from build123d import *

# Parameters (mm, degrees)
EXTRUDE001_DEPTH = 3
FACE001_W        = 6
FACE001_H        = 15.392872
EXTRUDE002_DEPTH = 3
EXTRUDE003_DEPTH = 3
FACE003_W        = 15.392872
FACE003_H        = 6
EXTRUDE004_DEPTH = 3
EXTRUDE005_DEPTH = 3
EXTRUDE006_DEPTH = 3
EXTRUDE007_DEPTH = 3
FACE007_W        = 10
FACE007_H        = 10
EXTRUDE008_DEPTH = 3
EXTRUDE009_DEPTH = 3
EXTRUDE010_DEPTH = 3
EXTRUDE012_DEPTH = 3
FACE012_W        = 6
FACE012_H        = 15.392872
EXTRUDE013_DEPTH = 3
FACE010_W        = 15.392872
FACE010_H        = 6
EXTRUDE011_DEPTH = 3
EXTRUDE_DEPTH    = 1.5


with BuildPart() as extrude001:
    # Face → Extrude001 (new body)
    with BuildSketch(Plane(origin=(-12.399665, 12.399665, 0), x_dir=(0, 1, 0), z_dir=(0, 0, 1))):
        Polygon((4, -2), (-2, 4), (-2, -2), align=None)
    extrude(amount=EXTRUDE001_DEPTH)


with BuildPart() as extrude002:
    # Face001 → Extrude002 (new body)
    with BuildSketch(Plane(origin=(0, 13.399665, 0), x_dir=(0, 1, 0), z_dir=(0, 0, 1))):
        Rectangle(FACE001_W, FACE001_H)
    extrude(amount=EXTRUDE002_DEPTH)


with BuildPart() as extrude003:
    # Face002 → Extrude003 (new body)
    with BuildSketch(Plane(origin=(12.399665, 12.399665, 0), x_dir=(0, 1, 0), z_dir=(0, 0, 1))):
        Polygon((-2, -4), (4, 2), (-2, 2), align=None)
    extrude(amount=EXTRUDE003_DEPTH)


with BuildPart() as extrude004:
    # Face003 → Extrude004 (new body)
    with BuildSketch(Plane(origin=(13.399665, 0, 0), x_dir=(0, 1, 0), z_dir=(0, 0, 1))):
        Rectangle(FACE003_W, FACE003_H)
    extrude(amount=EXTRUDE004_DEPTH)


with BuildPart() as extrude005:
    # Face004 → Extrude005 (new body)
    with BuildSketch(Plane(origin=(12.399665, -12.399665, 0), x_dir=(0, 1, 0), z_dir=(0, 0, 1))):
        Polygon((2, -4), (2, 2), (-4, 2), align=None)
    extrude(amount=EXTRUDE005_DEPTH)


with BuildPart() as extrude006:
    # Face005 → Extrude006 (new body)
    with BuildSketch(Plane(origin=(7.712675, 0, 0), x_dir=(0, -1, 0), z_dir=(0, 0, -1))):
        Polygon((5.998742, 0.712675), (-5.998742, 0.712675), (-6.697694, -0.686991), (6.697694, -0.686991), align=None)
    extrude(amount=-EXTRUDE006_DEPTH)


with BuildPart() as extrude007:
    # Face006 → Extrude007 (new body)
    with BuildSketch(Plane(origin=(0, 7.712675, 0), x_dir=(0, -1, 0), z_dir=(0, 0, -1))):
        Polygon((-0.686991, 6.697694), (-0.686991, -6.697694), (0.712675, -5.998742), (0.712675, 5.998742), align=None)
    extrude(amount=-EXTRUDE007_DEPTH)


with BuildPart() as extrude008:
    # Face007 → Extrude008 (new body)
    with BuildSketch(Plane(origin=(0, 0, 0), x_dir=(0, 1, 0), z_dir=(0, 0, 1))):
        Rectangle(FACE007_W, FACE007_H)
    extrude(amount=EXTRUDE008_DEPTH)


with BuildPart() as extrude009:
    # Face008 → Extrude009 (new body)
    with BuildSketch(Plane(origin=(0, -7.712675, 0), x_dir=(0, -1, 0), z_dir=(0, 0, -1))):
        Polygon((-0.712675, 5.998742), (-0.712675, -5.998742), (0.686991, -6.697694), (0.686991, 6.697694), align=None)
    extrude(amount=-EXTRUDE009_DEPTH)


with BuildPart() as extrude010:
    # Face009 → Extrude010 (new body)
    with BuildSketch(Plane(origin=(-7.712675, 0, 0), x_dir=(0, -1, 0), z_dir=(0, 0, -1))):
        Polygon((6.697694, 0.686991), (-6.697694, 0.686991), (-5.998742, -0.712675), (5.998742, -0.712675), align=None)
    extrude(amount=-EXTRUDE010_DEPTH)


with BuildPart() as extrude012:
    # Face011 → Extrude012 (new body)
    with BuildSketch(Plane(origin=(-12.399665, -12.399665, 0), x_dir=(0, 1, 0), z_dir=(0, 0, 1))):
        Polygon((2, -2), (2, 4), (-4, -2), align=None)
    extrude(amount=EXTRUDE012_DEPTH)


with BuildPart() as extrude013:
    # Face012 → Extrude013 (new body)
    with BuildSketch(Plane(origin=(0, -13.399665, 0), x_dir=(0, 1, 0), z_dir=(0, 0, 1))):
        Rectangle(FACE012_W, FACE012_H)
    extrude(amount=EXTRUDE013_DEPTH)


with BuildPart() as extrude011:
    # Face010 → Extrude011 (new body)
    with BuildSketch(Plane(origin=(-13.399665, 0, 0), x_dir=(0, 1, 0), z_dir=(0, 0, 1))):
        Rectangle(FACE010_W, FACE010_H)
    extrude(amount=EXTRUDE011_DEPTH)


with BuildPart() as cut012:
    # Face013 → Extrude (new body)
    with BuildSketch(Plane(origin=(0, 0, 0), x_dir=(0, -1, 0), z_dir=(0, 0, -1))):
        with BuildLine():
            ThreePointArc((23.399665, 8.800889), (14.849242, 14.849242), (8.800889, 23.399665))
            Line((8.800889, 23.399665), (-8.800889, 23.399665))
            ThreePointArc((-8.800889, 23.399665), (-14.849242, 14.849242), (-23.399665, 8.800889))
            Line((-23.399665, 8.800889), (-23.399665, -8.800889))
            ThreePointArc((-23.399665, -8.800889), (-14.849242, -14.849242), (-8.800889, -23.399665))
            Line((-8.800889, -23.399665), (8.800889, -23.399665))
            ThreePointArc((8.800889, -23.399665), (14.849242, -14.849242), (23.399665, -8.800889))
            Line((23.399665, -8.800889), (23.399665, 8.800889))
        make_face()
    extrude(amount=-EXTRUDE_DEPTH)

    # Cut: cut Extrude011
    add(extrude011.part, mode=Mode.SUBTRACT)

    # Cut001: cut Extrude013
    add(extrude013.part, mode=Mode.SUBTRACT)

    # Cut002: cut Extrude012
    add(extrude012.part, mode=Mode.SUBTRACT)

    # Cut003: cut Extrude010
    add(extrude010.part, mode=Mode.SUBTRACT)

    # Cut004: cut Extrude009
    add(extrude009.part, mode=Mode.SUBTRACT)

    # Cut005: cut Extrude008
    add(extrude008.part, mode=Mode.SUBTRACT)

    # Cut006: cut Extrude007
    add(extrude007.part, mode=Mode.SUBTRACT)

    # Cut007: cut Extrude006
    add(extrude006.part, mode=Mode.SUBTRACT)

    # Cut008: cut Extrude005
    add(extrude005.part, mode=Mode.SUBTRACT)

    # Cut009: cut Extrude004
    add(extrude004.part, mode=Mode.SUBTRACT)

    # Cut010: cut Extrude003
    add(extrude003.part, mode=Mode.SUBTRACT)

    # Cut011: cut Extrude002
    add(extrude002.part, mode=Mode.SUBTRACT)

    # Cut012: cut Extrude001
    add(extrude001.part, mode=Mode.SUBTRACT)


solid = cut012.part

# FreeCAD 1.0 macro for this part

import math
import FreeCAD as App
import Part
import Sketcher
from FreeCAD import Vector
Q = App.Units.Quantity

doc = App.newDocument("Part")
params = doc.addObject("Spreadsheet::Sheet", "Params")
for row, (alias, value) in enumerate([
    ("sketch1_width", "6 mm"),
    ("pad1_length", "3 mm"),
    ("sketch2_height", "6 mm"),
    ("pad2_length", "3 mm"),
    ("sketch3_width", "6 mm"),
    ("pad3_length", "3 mm"),
    ("sketch4_width", "6 mm"),
    ("pad4_length", "3 mm"),
    ("sketch5_width", "6 mm"),
    ("pad5_length", "3 mm"),
    ("pad6_length", "3 mm"),
    ("pad7_length", "3 mm"),
    ("sketch8_width", "10 mm"),
    ("pad8_length", "3 mm"),
    ("pad9_length", "3 mm"),
    ("pad10_length", "3 mm"),
    ("sketch11_width", "6 mm"),
    ("pad11_length", "3 mm"),
    ("sketch12_height", "6 mm"),
    ("pad12_length", "3 mm"),
    ("sketch13_width", "6 mm"),
    ("pad13_length", "3 mm"),
    ("sketch14_radius", "31.000002 mm"),
    ("pad14_length", "1.5 mm"),
], start=1):
    params.set(f"A{row}", alias)
    params.set(f"B{row}", "=" + value)
    params.setAlias(f"B{row}", alias)

body = doc.addObject("PartDesign::Body", "Body")

# Sketch on XY plane
sketch1 = body.newObject("Sketcher::SketchObject", "Sketch")
sketch1.AttachmentSupport = (doc.getObject("XY_Plane"), [""])
sketch1.MapMode = "FlatFace"
sketch1.addGeometry(Part.LineSegment(Vector(-10.399665, 16.399665, 0), Vector(-16.399665, 10.399665, 0)), False)
sketch1.addGeometry(Part.LineSegment(Vector(-16.399665, 10.399665, 0), Vector(-10.399665, 10.399665, 0)), False)
sketch1.addGeometry(Part.LineSegment(Vector(-10.399665, 10.399665, 0), Vector(-10.399665, 16.399665, 0)), False)
sketch1.addConstraint(Sketcher.Constraint("Coincident", 0, 2, 1, 1))
sketch1.addConstraint(Sketcher.Constraint("Coincident", 1, 2, 2, 1))
sketch1.addConstraint(Sketcher.Constraint("Coincident", 2, 2, 0, 1))
sketch1.addConstraint(Sketcher.Constraint("Horizontal", 1))
sketch1.addConstraint(Sketcher.Constraint("Vertical", 2))
sketch1.addConstraint(Sketcher.Constraint("Equal", 1, 2))
sketch1.addConstraint(Sketcher.Constraint("DistanceX", 1, 1, 1, 2, Q("6 mm")))
sketch1.addConstraint(Sketcher.Constraint("DistanceX", 0, 2, -1, 1, Q("16.399665 mm")))
sketch1.addConstraint(Sketcher.Constraint("DistanceY", -1, 1, 0, 2, Q("10.399665 mm")))
sketch1.setExpression("Constraints[6]", "Params.sketch1_width")
pad1 = body.newObject("PartDesign::Pad", "Pad")
pad1.Profile = sketch1
pad1.setExpression("Length", "Params.pad1_length")
body2 = doc.addObject("PartDesign::Body", "Body001")

# Sketch on XY plane
sketch2 = body2.newObject("Sketcher::SketchObject", "Sketch001")
sketch2.AttachmentSupport = (doc.getObject("XY_Plane001"), [""])
sketch2.MapMode = "FlatFace"
sketch2.addGeometry(Part.LineSegment(Vector(-7.696436, 10.399665, 0), Vector(7.696436, 10.399665, 0)), False)
sketch2.addGeometry(Part.LineSegment(Vector(7.696436, 10.399665, 0), Vector(7.696436, 16.399665, 0)), False)
sketch2.addGeometry(Part.LineSegment(Vector(7.696436, 16.399665, 0), Vector(-7.696436, 16.399665, 0)), False)
sketch2.addGeometry(Part.LineSegment(Vector(-7.696436, 16.399665, 0), Vector(-7.696436, 10.399665, 0)), False)
sketch2.addConstraint(Sketcher.Constraint("Coincident", 0, 2, 1, 1))
sketch2.addConstraint(Sketcher.Constraint("Coincident", 1, 2, 2, 1))
sketch2.addConstraint(Sketcher.Constraint("Coincident", 2, 2, 3, 1))
sketch2.addConstraint(Sketcher.Constraint("Coincident", 3, 2, 0, 1))
sketch2.addConstraint(Sketcher.Constraint("Horizontal", 0))
sketch2.addConstraint(Sketcher.Constraint("Vertical", 1))
sketch2.addConstraint(Sketcher.Constraint("Horizontal", 2))
sketch2.addConstraint(Sketcher.Constraint("Vertical", 3))
sketch2.addConstraint(Sketcher.Constraint("DistanceY", 1, 1, 1, 2, Q("6 mm")))
sketch2.addConstraint(Sketcher.Constraint("DistanceX", 0, 1, 0, 2, Q("15.392872 mm")))
sketch2.addConstraint(Sketcher.Constraint("DistanceX", -1, 1, 0, 2, Q("7.696436 mm")))
sketch2.addConstraint(Sketcher.Constraint("DistanceY", -1, 1, 0, 2, Q("10.399665 mm")))
sketch2.setExpression("Constraints[8]", "Params.sketch2_height")
pad2 = body2.newObject("PartDesign::Pad", "Pad001")
pad2.Profile = sketch2
pad2.setExpression("Length", "Params.pad2_length")
body3 = doc.addObject("PartDesign::Body", "Body002")

# Sketch on XY plane
sketch3 = body3.newObject("Sketcher::SketchObject", "Sketch002")
sketch3.AttachmentSupport = (doc.getObject("XY_Plane002"), [""])
sketch3.MapMode = "FlatFace"
sketch3.addGeometry(Part.LineSegment(Vector(16.399665, 10.399665, 0), Vector(10.399665, 16.399665, 0)), False)
sketch3.addGeometry(Part.LineSegment(Vector(10.399665, 16.399665, 0), Vector(10.399665, 10.399665, 0)), False)
sketch3.addGeometry(Part.LineSegment(Vector(10.399665, 10.399665, 0), Vector(16.399665, 10.399665, 0)), False)
sketch3.addConstraint(Sketcher.Constraint("Coincident", 0, 2, 1, 1))
sketch3.addConstraint(Sketcher.Constraint("Coincident", 1, 2, 2, 1))
sketch3.addConstraint(Sketcher.Constraint("Coincident", 2, 2, 0, 1))
sketch3.addConstraint(Sketcher.Constraint("Vertical", 1))
sketch3.addConstraint(Sketcher.Constraint("Horizontal", 2))
sketch3.addConstraint(Sketcher.Constraint("Equal", 2, 1))
sketch3.addConstraint(Sketcher.Constraint("DistanceX", 2, 1, 2, 2, Q("6 mm")))
sketch3.addConstraint(Sketcher.Constraint("DistanceX", -1, 1, 0, 2, Q("10.399665 mm")))
sketch3.addConstraint(Sketcher.Constraint("DistanceY", -1, 1, 0, 2, Q("16.399665 mm")))
sketch3.setExpression("Constraints[6]", "Params.sketch3_width")
pad3 = body3.newObject("PartDesign::Pad", "Pad002")
pad3.Profile = sketch3
pad3.setExpression("Length", "Params.pad3_length")
body4 = doc.addObject("PartDesign::Body", "Body003")

# Sketch on XY plane
sketch4 = body4.newObject("Sketcher::SketchObject", "Sketch003")
sketch4.AttachmentSupport = (doc.getObject("XY_Plane003"), [""])
sketch4.MapMode = "FlatFace"
sketch4.addGeometry(Part.LineSegment(Vector(10.399665, -7.696436, 0), Vector(16.399665, -7.696436, 0)), False)
sketch4.addGeometry(Part.LineSegment(Vector(16.399665, -7.696436, 0), Vector(16.399665, 7.696436, 0)), False)
sketch4.addGeometry(Part.LineSegment(Vector(16.399665, 7.696436, 0), Vector(10.399665, 7.696436, 0)), False)
sketch4.addGeometry(Part.LineSegment(Vector(10.399665, 7.696436, 0), Vector(10.399665, -7.696436, 0)), False)
sketch4.addConstraint(Sketcher.Constraint("Coincident", 0, 2, 1, 1))
sketch4.addConstraint(Sketcher.Constraint("Coincident", 1, 2, 2, 1))
sketch4.addConstraint(Sketcher.Constraint("Coincident", 2, 2, 3, 1))
sketch4.addConstraint(Sketcher.Constraint("Coincident", 3, 2, 0, 1))
sketch4.addConstraint(Sketcher.Constraint("Horizontal", 0))
sketch4.addConstraint(Sketcher.Constraint("Vertical", 1))
sketch4.addConstraint(Sketcher.Constraint("Horizontal", 2))
sketch4.addConstraint(Sketcher.Constraint("Vertical", 3))
sketch4.addConstraint(Sketcher.Constraint("DistanceX", 0, 1, 0, 2, Q("6 mm")))
sketch4.addConstraint(Sketcher.Constraint("DistanceY", 1, 1, 1, 2, Q("15.392872 mm")))
sketch4.addConstraint(Sketcher.Constraint("DistanceX", -1, 1, 0, 2, Q("16.399665 mm")))
sketch4.addConstraint(Sketcher.Constraint("DistanceY", 0, 2, -1, 1, Q("7.696436 mm")))
sketch4.setExpression("Constraints[8]", "Params.sketch4_width")
pad4 = body4.newObject("PartDesign::Pad", "Pad003")
pad4.Profile = sketch4
pad4.setExpression("Length", "Params.pad4_length")
body5 = doc.addObject("PartDesign::Body", "Body004")

# Sketch on XY plane
sketch5 = body5.newObject("Sketcher::SketchObject", "Sketch004")
sketch5.AttachmentSupport = (doc.getObject("XY_Plane004"), [""])
sketch5.MapMode = "FlatFace"
sketch5.addGeometry(Part.LineSegment(Vector(16.399665, -10.399665, 0), Vector(10.399665, -10.399665, 0)), False)
sketch5.addGeometry(Part.LineSegment(Vector(10.399665, -10.399665, 0), Vector(10.399665, -16.399665, 0)), False)
sketch5.addGeometry(Part.LineSegment(Vector(10.399665, -16.399665, 0), Vector(16.399665, -10.399665, 0)), False)
sketch5.addConstraint(Sketcher.Constraint("Coincident", 0, 2, 1, 1))
sketch5.addConstraint(Sketcher.Constraint("Coincident", 1, 2, 2, 1))
sketch5.addConstraint(Sketcher.Constraint("Coincident", 2, 2, 0, 1))
sketch5.addConstraint(Sketcher.Constraint("Horizontal", 0))
sketch5.addConstraint(Sketcher.Constraint("Vertical", 1))
sketch5.addConstraint(Sketcher.Constraint("Equal", 0, 1))
sketch5.addConstraint(Sketcher.Constraint("DistanceX", 0, 2, 0, 1, Q("6 mm")))
sketch5.addConstraint(Sketcher.Constraint("DistanceX", -1, 1, 0, 2, Q("10.399665 mm")))
sketch5.addConstraint(Sketcher.Constraint("DistanceY", 0, 2, -1, 1, Q("10.399665 mm")))
sketch5.setExpression("Constraints[6]", "Params.sketch5_width")
pad5 = body5.newObject("PartDesign::Pad", "Pad004")
pad5.Profile = sketch5
pad5.setExpression("Length", "Params.pad5_length")
body6 = doc.addObject("PartDesign::Body", "Body005")

# Sketch on XY plane
sketch6 = body6.newObject("Sketcher::SketchObject", "Sketch005")
sketch6.AttachmentSupport = (doc.getObject("XY_Plane005"), [""])
sketch6.MapMode = "FlatFace"
sketch6.addGeometry(Part.LineSegment(Vector(7, -5.998742, 0), Vector(7, 5.998742, 0)), False)
sketch6.addGeometry(Part.LineSegment(Vector(7, 5.998742, 0), Vector(8.399666, 6.697694, 0)), False)
sketch6.addGeometry(Part.LineSegment(Vector(8.399666, 6.697694, 0), Vector(8.399666, -6.697694, 0)), False)
sketch6.addGeometry(Part.LineSegment(Vector(8.399666, -6.697694, 0), Vector(7, -5.998742, 0)), False)
sketch6.addConstraint(Sketcher.Constraint("Coincident", 0, 2, 1, 1))
sketch6.addConstraint(Sketcher.Constraint("Coincident", 1, 2, 2, 1))
sketch6.addConstraint(Sketcher.Constraint("Coincident", 2, 2, 3, 1))
sketch6.addConstraint(Sketcher.Constraint("Coincident", 3, 2, 0, 1))
sketch6.addConstraint(Sketcher.Constraint("Vertical", 0))
sketch6.addConstraint(Sketcher.Constraint("Vertical", 2))
sketch6.addConstraint(Sketcher.Constraint("Equal", 1, 3))
sketch6.addConstraint(Sketcher.Constraint("DistanceX", -1, 1, 0, 2, Q("7 mm")))
sketch6.addConstraint(Sketcher.Constraint("Distance", 1, Q("1.56448 mm")))
sketch6.addConstraint(Sketcher.Constraint("DistanceY", 0, 1, 0, 2, Q("11.997484 mm")))
sketch6.addConstraint(Sketcher.Constraint("DistanceY", 2, 2, 2, 1, Q("13.395388 mm")))
sketch6.addConstraint(Sketcher.Constraint("DistanceY", -1, 1, 0, 2, Q("5.998742 mm")))
pad6 = body6.newObject("PartDesign::Pad", "Pad005")
pad6.Profile = sketch6
pad6.setExpression("Length", "Params.pad6_length")
body7 = doc.addObject("PartDesign::Body", "Body006")

# Sketch on XY plane
sketch7 = body7.newObject("Sketcher::SketchObject", "Sketch006")
sketch7.AttachmentSupport = (doc.getObject("XY_Plane006"), [""])
sketch7.MapMode = "FlatFace"
sketch7.addGeometry(Part.LineSegment(Vector(-6.697694, 8.399666, 0), Vector(6.697694, 8.399666, 0)), False)
sketch7.addGeometry(Part.LineSegment(Vector(6.697694, 8.399666, 0), Vector(5.998742, 7, 0)), False)
sketch7.addGeometry(Part.LineSegment(Vector(5.998742, 7, 0), Vector(-5.998742, 7, 0)), False)
sketch7.addGeometry(Part.LineSegment(Vector(-5.998742, 7, 0), Vector(-6.697694, 8.399666, 0)), False)
sketch7.addConstraint(Sketcher.Constraint("Coincident", 0, 2, 1, 1))
sketch7.addConstraint(Sketcher.Constraint("Coincident", 1, 2, 2, 1))
sketch7.addConstraint(Sketcher.Constraint("Coincident", 2, 2, 3, 1))
sketch7.addConstraint(Sketcher.Constraint("Coincident", 3, 2, 0, 1))
sketch7.addConstraint(Sketcher.Constraint("Horizontal", 0))
sketch7.addConstraint(Sketcher.Constraint("Horizontal", 2))
sketch7.addConstraint(Sketcher.Constraint("Equal", 1, 3))
sketch7.addConstraint(Sketcher.Constraint("DistanceY", -1, 1, 1, 2, Q("7 mm")))
sketch7.addConstraint(Sketcher.Constraint("Distance", 1, Q("1.56448 mm")))
sketch7.addConstraint(Sketcher.Constraint("DistanceX", 0, 1, 0, 2, Q("13.395388 mm")))
sketch7.addConstraint(Sketcher.Constraint("DistanceX", 2, 2, 2, 1, Q("11.997484 mm")))
sketch7.addConstraint(Sketcher.Constraint("DistanceX", -1, 1, 0, 2, Q("6.697694 mm")))
pad7 = body7.newObject("PartDesign::Pad", "Pad006")
pad7.Profile = sketch7
pad7.setExpression("Length", "Params.pad7_length")
body8 = doc.addObject("PartDesign::Body", "Body007")

# Sketch on XY plane
sketch8 = body8.newObject("Sketcher::SketchObject", "Sketch007")
sketch8.AttachmentSupport = (doc.getObject("XY_Plane007"), [""])
sketch8.MapMode = "FlatFace"
sketch8.addGeometry(Part.LineSegment(Vector(-5, -5, 0), Vector(5, -5, 0)), False)
sketch8.addGeometry(Part.LineSegment(Vector(5, -5, 0), Vector(5, 5, 0)), False)
sketch8.addGeometry(Part.LineSegment(Vector(5, 5, 0), Vector(-5, 5, 0)), False)
sketch8.addGeometry(Part.LineSegment(Vector(-5, 5, 0), Vector(-5, -5, 0)), False)
sketch8.addConstraint(Sketcher.Constraint("Coincident", 0, 2, 1, 1))
sketch8.addConstraint(Sketcher.Constraint("Coincident", 1, 2, 2, 1))
sketch8.addConstraint(Sketcher.Constraint("Coincident", 2, 2, 3, 1))
sketch8.addConstraint(Sketcher.Constraint("Coincident", 3, 2, 0, 1))
sketch8.addConstraint(Sketcher.Constraint("Horizontal", 0))
sketch8.addConstraint(Sketcher.Constraint("Vertical", 1))
sketch8.addConstraint(Sketcher.Constraint("Horizontal", 2))
sketch8.addConstraint(Sketcher.Constraint("Vertical", 3))
sketch8.addConstraint(Sketcher.Constraint("Symmetric", 0, 2, 2, 2, -1, 1))
sketch8.addConstraint(Sketcher.Constraint("Equal", 2, 1))
sketch8.addConstraint(Sketcher.Constraint("DistanceX", 0, 1, 0, 2, Q("10 mm")))
sketch8.setExpression("Constraints[10]", "Params.sketch8_width")
pad8 = body8.newObject("PartDesign::Pad", "Pad007")
pad8.Profile = sketch8
pad8.setExpression("Length", "Params.pad8_length")
body9 = doc.addObject("PartDesign::Body", "Body008")

# Sketch on XY plane
sketch9 = body9.newObject("Sketcher::SketchObject", "Sketch008")
sketch9.AttachmentSupport = (doc.getObject("XY_Plane008"), [""])
sketch9.MapMode = "FlatFace"
sketch9.addGeometry(Part.LineSegment(Vector(-5.998742, -7, 0), Vector(5.998742, -7, 0)), False)
sketch9.addGeometry(Part.LineSegment(Vector(5.998742, -7, 0), Vector(6.697694, -8.399666, 0)), False)
sketch9.addGeometry(Part.LineSegment(Vector(6.697694, -8.399666, 0), Vector(-6.697694, -8.399666, 0)), False)
sketch9.addGeometry(Part.LineSegment(Vector(-6.697694, -8.399666, 0), Vector(-5.998742, -7, 0)), False)
sketch9.addConstraint(Sketcher.Constraint("Coincident", 0, 2, 1, 1))
sketch9.addConstraint(Sketcher.Constraint("Coincident", 1, 2, 2, 1))
sketch9.addConstraint(Sketcher.Constraint("Coincident", 2, 2, 3, 1))
sketch9.addConstraint(Sketcher.Constraint("Coincident", 3, 2, 0, 1))
sketch9.addConstraint(Sketcher.Constraint("Horizontal", 0))
sketch9.addConstraint(Sketcher.Constraint("Horizontal", 2))
sketch9.addConstraint(Sketcher.Constraint("Equal", 1, 3))
sketch9.addConstraint(Sketcher.Constraint("DistanceY", 0, 2, -1, 1, Q("7 mm")))
sketch9.addConstraint(Sketcher.Constraint("Distance", 1, Q("1.56448 mm")))
sketch9.addConstraint(Sketcher.Constraint("DistanceX", 0, 1, 0, 2, Q("11.997484 mm")))
sketch9.addConstraint(Sketcher.Constraint("DistanceX", 2, 2, 2, 1, Q("13.395388 mm")))
sketch9.addConstraint(Sketcher.Constraint("DistanceX", -1, 1, 0, 2, Q("5.998742 mm")))
pad9 = body9.newObject("PartDesign::Pad", "Pad008")
pad9.Profile = sketch9
pad9.setExpression("Length", "Params.pad9_length")
body10 = doc.addObject("PartDesign::Body", "Body009")

# Sketch on XY plane
sketch10 = body10.newObject("Sketcher::SketchObject", "Sketch009")
sketch10.AttachmentSupport = (doc.getObject("XY_Plane009"), [""])
sketch10.MapMode = "FlatFace"
sketch10.addGeometry(Part.LineSegment(Vector(-8.399666, -6.697694, 0), Vector(-8.399666, 6.697694, 0)), False)
sketch10.addGeometry(Part.LineSegment(Vector(-8.399666, 6.697694, 0), Vector(-7, 5.998742, 0)), False)
sketch10.addGeometry(Part.LineSegment(Vector(-7, 5.998742, 0), Vector(-7, -5.998742, 0)), False)
sketch10.addGeometry(Part.LineSegment(Vector(-7, -5.998742, 0), Vector(-8.399666, -6.697694, 0)), False)
sketch10.addConstraint(Sketcher.Constraint("Coincident", 0, 2, 1, 1))
sketch10.addConstraint(Sketcher.Constraint("Coincident", 1, 2, 2, 1))
sketch10.addConstraint(Sketcher.Constraint("Coincident", 2, 2, 3, 1))
sketch10.addConstraint(Sketcher.Constraint("Coincident", 3, 2, 0, 1))
sketch10.addConstraint(Sketcher.Constraint("Vertical", 0))
sketch10.addConstraint(Sketcher.Constraint("Vertical", 2))
sketch10.addConstraint(Sketcher.Constraint("Equal", 1, 3))
sketch10.addConstraint(Sketcher.Constraint("DistanceX", 1, 2, -1, 1, Q("7 mm")))
sketch10.addConstraint(Sketcher.Constraint("Distance", 1, Q("1.56448 mm")))
sketch10.addConstraint(Sketcher.Constraint("DistanceY", 0, 1, 0, 2, Q("13.395388 mm")))
sketch10.addConstraint(Sketcher.Constraint("DistanceY", 2, 2, 2, 1, Q("11.997484 mm")))
sketch10.addConstraint(Sketcher.Constraint("DistanceY", -1, 1, 0, 2, Q("6.697694 mm")))
pad10 = body10.newObject("PartDesign::Pad", "Pad009")
pad10.Profile = sketch10
pad10.setExpression("Length", "Params.pad10_length")
body11 = doc.addObject("PartDesign::Body", "Body010")

# Sketch on XY plane
sketch11 = body11.newObject("Sketcher::SketchObject", "Sketch010")
sketch11.AttachmentSupport = (doc.getObject("XY_Plane010"), [""])
sketch11.MapMode = "FlatFace"
sketch11.addGeometry(Part.LineSegment(Vector(-10.399665, -10.399665, 0), Vector(-16.399665, -10.399665, 0)), False)
sketch11.addGeometry(Part.LineSegment(Vector(-16.399665, -10.399665, 0), Vector(-10.399665, -16.399665, 0)), False)
sketch11.addGeometry(Part.LineSegment(Vector(-10.399665, -16.399665, 0), Vector(-10.399665, -10.399665, 0)), False)
sketch11.addConstraint(Sketcher.Constraint("Coincident", 0, 2, 1, 1))
sketch11.addConstraint(Sketcher.Constraint("Coincident", 1, 2, 2, 1))
sketch11.addConstraint(Sketcher.Constraint("Coincident", 2, 2, 0, 1))
sketch11.addConstraint(Sketcher.Constraint("Horizontal", 0))
sketch11.addConstraint(Sketcher.Constraint("Vertical", 2))
sketch11.addConstraint(Sketcher.Constraint("Equal", 0, 2))
sketch11.addConstraint(Sketcher.Constraint("DistanceX", 0, 2, 0, 1, Q("6 mm")))
sketch11.addConstraint(Sketcher.Constraint("DistanceX", 0, 2, -1, 1, Q("16.399665 mm")))
sketch11.addConstraint(Sketcher.Constraint("DistanceY", 0, 2, -1, 1, Q("10.399665 mm")))
sketch11.setExpression("Constraints[6]", "Params.sketch11_width")
pad11 = body11.newObject("PartDesign::Pad", "Pad010")
pad11.Profile = sketch11
pad11.setExpression("Length", "Params.pad11_length")
body12 = doc.addObject("PartDesign::Body", "Body011")

# Sketch on XY plane
sketch12 = body12.newObject("Sketcher::SketchObject", "Sketch011")
sketch12.AttachmentSupport = (doc.getObject("XY_Plane011"), [""])
sketch12.MapMode = "FlatFace"
sketch12.addGeometry(Part.LineSegment(Vector(-7.696436, -16.399665, 0), Vector(7.696436, -16.399665, 0)), False)
sketch12.addGeometry(Part.LineSegment(Vector(7.696436, -16.399665, 0), Vector(7.696436, -10.399665, 0)), False)
sketch12.addGeometry(Part.LineSegment(Vector(7.696436, -10.399665, 0), Vector(-7.696436, -10.399665, 0)), False)
sketch12.addGeometry(Part.LineSegment(Vector(-7.696436, -10.399665, 0), Vector(-7.696436, -16.399665, 0)), False)
sketch12.addConstraint(Sketcher.Constraint("Coincident", 0, 2, 1, 1))
sketch12.addConstraint(Sketcher.Constraint("Coincident", 1, 2, 2, 1))
sketch12.addConstraint(Sketcher.Constraint("Coincident", 2, 2, 3, 1))
sketch12.addConstraint(Sketcher.Constraint("Coincident", 3, 2, 0, 1))
sketch12.addConstraint(Sketcher.Constraint("Horizontal", 0))
sketch12.addConstraint(Sketcher.Constraint("Vertical", 1))
sketch12.addConstraint(Sketcher.Constraint("Horizontal", 2))
sketch12.addConstraint(Sketcher.Constraint("Vertical", 3))
sketch12.addConstraint(Sketcher.Constraint("DistanceY", 1, 1, 1, 2, Q("6 mm")))
sketch12.addConstraint(Sketcher.Constraint("DistanceX", 0, 1, 0, 2, Q("15.392872 mm")))
sketch12.addConstraint(Sketcher.Constraint("DistanceX", -1, 1, 0, 2, Q("7.696436 mm")))
sketch12.addConstraint(Sketcher.Constraint("DistanceY", 0, 2, -1, 1, Q("16.399665 mm")))
sketch12.setExpression("Constraints[8]", "Params.sketch12_height")
pad12 = body12.newObject("PartDesign::Pad", "Pad011")
pad12.Profile = sketch12
pad12.setExpression("Length", "Params.pad12_length")
body13 = doc.addObject("PartDesign::Body", "Body012")

# Sketch on XY plane
sketch13 = body13.newObject("Sketcher::SketchObject", "Sketch012")
sketch13.AttachmentSupport = (doc.getObject("XY_Plane012"), [""])
sketch13.MapMode = "FlatFace"
sketch13.addGeometry(Part.LineSegment(Vector(-16.399665, -7.696436, 0), Vector(-10.399665, -7.696436, 0)), False)
sketch13.addGeometry(Part.LineSegment(Vector(-10.399665, -7.696436, 0), Vector(-10.399665, 7.696436, 0)), False)
sketch13.addGeometry(Part.LineSegment(Vector(-10.399665, 7.696436, 0), Vector(-16.399665, 7.696436, 0)), False)
sketch13.addGeometry(Part.LineSegment(Vector(-16.399665, 7.696436, 0), Vector(-16.399665, -7.696436, 0)), False)
sketch13.addConstraint(Sketcher.Constraint("Coincident", 0, 2, 1, 1))
sketch13.addConstraint(Sketcher.Constraint("Coincident", 1, 2, 2, 1))
sketch13.addConstraint(Sketcher.Constraint("Coincident", 2, 2, 3, 1))
sketch13.addConstraint(Sketcher.Constraint("Coincident", 3, 2, 0, 1))
sketch13.addConstraint(Sketcher.Constraint("Horizontal", 0))
sketch13.addConstraint(Sketcher.Constraint("Vertical", 1))
sketch13.addConstraint(Sketcher.Constraint("Horizontal", 2))
sketch13.addConstraint(Sketcher.Constraint("Vertical", 3))
sketch13.addConstraint(Sketcher.Constraint("DistanceX", 0, 1, 0, 2, Q("6 mm")))
sketch13.addConstraint(Sketcher.Constraint("DistanceY", 1, 1, 1, 2, Q("15.392872 mm")))
sketch13.addConstraint(Sketcher.Constraint("DistanceX", 0, 2, -1, 1, Q("10.399665 mm")))
sketch13.addConstraint(Sketcher.Constraint("DistanceY", 0, 2, -1, 1, Q("7.696436 mm")))
sketch13.setExpression("Constraints[8]", "Params.sketch13_width")
pad13 = body13.newObject("PartDesign::Pad", "Pad012")
pad13.Profile = sketch13
pad13.setExpression("Length", "Params.pad13_length")
body14 = doc.addObject("PartDesign::Body", "Body013")

# Sketch on XY plane
sketch14 = body14.newObject("Sketcher::SketchObject", "Sketch013")
sketch14.AttachmentSupport = (doc.getObject("XY_Plane013"), [""])
sketch14.MapMode = "FlatFace"
sketch14.addGeometry(Part.ArcOfCircle(Part.Circle(Vector(-36.769553, -36.769553, 0), Vector(0, 0, 1), 31.000002), math.radians(25.549245), math.radians(64.450755)), False)
sketch14.addGeometry(Part.LineSegment(Vector(-23.399665, -8.800889, 0), Vector(-23.399665, 8.800889, 0)), False)
sketch14.addGeometry(Part.ArcOfCircle(Part.Circle(Vector(-36.769553, 36.769553, 0), Vector(0, 0, 1), 31.000002), math.radians(-64.450755), math.radians(-25.549245)), False)
sketch14.addGeometry(Part.LineSegment(Vector(-8.800889, 23.399665, 0), Vector(8.800889, 23.399665, 0)), False)
sketch14.addGeometry(Part.ArcOfCircle(Part.Circle(Vector(36.769553, 36.769553, 0), Vector(0, 0, 1), 31.000002), math.radians(-154.450755), math.radians(-115.549245)), False)
sketch14.addGeometry(Part.LineSegment(Vector(23.399665, 8.800889, 0), Vector(23.399665, -8.800889, 0)), False)
sketch14.addGeometry(Part.ArcOfCircle(Part.Circle(Vector(36.769553, -36.769553, 0), Vector(0, 0, 1), 31.000002), math.radians(115.549245), math.radians(154.450755)), False)
sketch14.addGeometry(Part.LineSegment(Vector(8.800889, -23.399665, 0), Vector(-8.800889, -23.399665, 0)), False)
sketch14.addConstraint(Sketcher.Constraint("Coincident", 0, 2, 1, 1))
sketch14.addConstraint(Sketcher.Constraint("Coincident", 1, 2, 2, 1))
sketch14.addConstraint(Sketcher.Constraint("Coincident", 2, 2, 3, 1))
sketch14.addConstraint(Sketcher.Constraint("Coincident", 3, 2, 4, 1))
sketch14.addConstraint(Sketcher.Constraint("Coincident", 4, 2, 5, 1))
sketch14.addConstraint(Sketcher.Constraint("Coincident", 5, 2, 6, 1))
sketch14.addConstraint(Sketcher.Constraint("Coincident", 6, 2, 7, 1))
sketch14.addConstraint(Sketcher.Constraint("Coincident", 7, 2, 0, 1))
sketch14.addConstraint(Sketcher.Constraint("Vertical", 1))
sketch14.addConstraint(Sketcher.Constraint("Horizontal", 3))
sketch14.addConstraint(Sketcher.Constraint("Vertical", 5))
sketch14.addConstraint(Sketcher.Constraint("Horizontal", 7))
sketch14.addConstraint(Sketcher.Constraint("Equal", 0, 2))
sketch14.addConstraint(Sketcher.Constraint("Equal", 2, 4))
sketch14.addConstraint(Sketcher.Constraint("Equal", 4, 6))
sketch14.addConstraint(Sketcher.Constraint("Symmetric", 0, 3, 4, 3, -1, 1))
sketch14.addConstraint(Sketcher.Constraint("Symmetric", 2, 3, 6, 3, -1, 1))
sketch14.addConstraint(Sketcher.Constraint("Symmetric", 2, 3, 4, 3, -2))
sketch14.addConstraint(Sketcher.Constraint("Horizontal", 1, 2, 4, 2))
sketch14.addConstraint(Sketcher.Constraint("Vertical", 3, 2, 6, 2))
sketch14.addConstraint(Sketcher.Constraint("Equal", 7, 1))
sketch14.addConstraint(Sketcher.Constraint("Radius", 0, Q("31.000002 mm")))
sketch14.addConstraint(Sketcher.Constraint("DistanceX", 3, 1, 3, 2, Q("17.601778 mm")))
sketch14.addConstraint(Sketcher.Constraint("DistanceX", 0, 3, 0, 2, Q("13.369888 mm")))
sketch14.addConstraint(Sketcher.Constraint("DistanceX", 0, 2, 6, 3, Q("60.169218 mm")))
sketch14.setExpression("Constraints[21]", "Params.sketch14_radius")
pad14 = body14.newObject("PartDesign::Pad", "Pad013")
pad14.Profile = sketch14
pad14.setExpression("Length", "Params.pad14_length")
doc.recompute()

boolean = body14.newObject("PartDesign::Boolean", "Boolean")
boolean.Type = "Cut"
boolean.addObjects([body13])
doc.recompute()

boolean2 = body14.newObject("PartDesign::Boolean", "Boolean001")
boolean2.Type = "Cut"
boolean2.addObjects([body12])
doc.recompute()

boolean3 = body14.newObject("PartDesign::Boolean", "Boolean002")
boolean3.Type = "Cut"
boolean3.addObjects([body11])
doc.recompute()

boolean4 = body14.newObject("PartDesign::Boolean", "Boolean003")
boolean4.Type = "Cut"
boolean4.addObjects([body10])
doc.recompute()

boolean5 = body14.newObject("PartDesign::Boolean", "Boolean004")
boolean5.Type = "Cut"
boolean5.addObjects([body9])
doc.recompute()

boolean6 = body14.newObject("PartDesign::Boolean", "Boolean005")
boolean6.Type = "Cut"
boolean6.addObjects([body8])
doc.recompute()

boolean7 = body14.newObject("PartDesign::Boolean", "Boolean006")
boolean7.Type = "Cut"
boolean7.addObjects([body7])
doc.recompute()

boolean8 = body14.newObject("PartDesign::Boolean", "Boolean007")
boolean8.Type = "Cut"
boolean8.addObjects([body6])
doc.recompute()

boolean9 = body14.newObject("PartDesign::Boolean", "Boolean008")
boolean9.Type = "Cut"
boolean9.addObjects([body5])
doc.recompute()

boolean10 = body14.newObject("PartDesign::Boolean", "Boolean009")
boolean10.Type = "Cut"
boolean10.addObjects([body4])
doc.recompute()

boolean11 = body14.newObject("PartDesign::Boolean", "Boolean010")
boolean11.Type = "Cut"
boolean11.addObjects([body3])
doc.recompute()

boolean12 = body14.newObject("PartDesign::Boolean", "Boolean011")
boolean12.Type = "Cut"
boolean12.addObjects([body2])
doc.recompute()

boolean13 = body14.newObject("PartDesign::Boolean", "Boolean012")
boolean13.Type = "Cut"
boolean13.addObjects([body])

doc.recompute()
